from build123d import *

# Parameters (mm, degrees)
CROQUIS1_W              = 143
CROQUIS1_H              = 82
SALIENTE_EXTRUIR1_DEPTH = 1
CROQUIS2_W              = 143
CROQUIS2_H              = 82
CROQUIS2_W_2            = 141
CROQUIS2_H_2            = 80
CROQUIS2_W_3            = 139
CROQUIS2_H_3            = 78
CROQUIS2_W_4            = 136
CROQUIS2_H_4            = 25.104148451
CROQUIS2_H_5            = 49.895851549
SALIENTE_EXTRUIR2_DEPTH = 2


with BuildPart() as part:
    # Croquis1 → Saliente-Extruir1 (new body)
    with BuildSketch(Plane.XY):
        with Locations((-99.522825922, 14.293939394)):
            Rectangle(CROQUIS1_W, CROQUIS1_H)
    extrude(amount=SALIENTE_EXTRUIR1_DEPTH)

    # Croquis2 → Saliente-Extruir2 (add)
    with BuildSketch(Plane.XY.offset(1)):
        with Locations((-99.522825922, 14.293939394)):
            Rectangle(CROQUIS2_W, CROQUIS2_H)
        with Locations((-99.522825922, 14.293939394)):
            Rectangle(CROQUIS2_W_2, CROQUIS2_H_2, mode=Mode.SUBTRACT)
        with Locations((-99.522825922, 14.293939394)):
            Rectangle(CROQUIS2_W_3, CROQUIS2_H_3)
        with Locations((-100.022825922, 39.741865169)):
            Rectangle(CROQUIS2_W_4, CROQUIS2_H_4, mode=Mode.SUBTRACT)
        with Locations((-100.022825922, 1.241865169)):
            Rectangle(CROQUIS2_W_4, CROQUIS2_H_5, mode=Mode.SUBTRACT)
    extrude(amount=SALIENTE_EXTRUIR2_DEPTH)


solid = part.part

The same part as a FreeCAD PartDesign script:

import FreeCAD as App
import Part
import Sketcher

V = App.Vector
Q = App.Units.Quantity


def add_polygon(sketch, points):
    """Adds a closed chain of lines whose ends are joined by coincident constraints."""
    first, n = sketch.GeometryCount, len(points)
    for a, b in zip(points, points[1:] + points[:1]):
        sketch.addGeometry(Part.LineSegment(App.Vector(*a, 0), App.Vector(*b, 0)), False)
    for i in range(n):
        sketch.addConstraint(Sketcher.Constraint("Coincident", first + i, 2, first + (i + 1) % n, 1))

doc = App.newDocument("Part")
params = doc.addObject("Spreadsheet::Sheet", "Params")
for row, (alias, value) in enumerate([
    ("sketch1_width", "143 mm"),
    ("sketch1_height", "82 mm"),
    ("pad1_length", "1 mm"),
    ("sketch2_width", "143 mm"),
    ("sketch2_width2", "141 mm"),
    ("sketch2_width3", "139 mm"),
    ("sketch2_width4", "136 mm"),
    ("sketch2_height", "82 mm"),
    ("pad2_length", "2 mm"),
], start=1):
    params.set(f"A{row}", alias)
    params.set(f"B{row}", "=" + value)
    params.setAlias(f"B{row}", alias)

body = doc.addObject("PartDesign::Body", "Body")

# Sketch on XY plane
sketch1 = doc.addObject("Sketcher::SketchObject", "Sketch")
body.addObject(sketch1)
sketch1.AttachmentSupport = (doc.XY_Plane, [""])
sketch1.MapMode = "FlatFace"
add_polygon(sketch1, [(-171.022826, 55.293939), (-171.022826, -26.706061), (-28.022826, -26.706061), (-28.022826, 55.293939)])  # lines 0-3
sketch1.addConstraint(Sketcher.Constraint("Vertical", 0))
sketch1.addConstraint(Sketcher.Constraint("Horizontal", 1))
sketch1.addConstraint(Sketcher.Constraint("Vertical", 2))
sketch1.addConstraint(Sketcher.Constraint("Horizontal", 3))
sketch1.addConstraint(Sketcher.Constraint("DistanceX", 1, 1, 1, 2, Q("143 mm")))
sketch1.addConstraint(Sketcher.Constraint("DistanceY", 0, 2, 0, 1, Q("82 mm")))
sketch1.addConstraint(Sketcher.Constraint("DistanceY", 0, 2, -1, 1, Q("26.706061 mm")))
sketch1.addConstraint(Sketcher.Constraint("DistanceX", 0, 2, -1, 1, Q("171.022826 mm")))
sketch1.setExpression("Constraints[8]", "Params.sketch1_width")
sketch1.setExpression("Constraints[9]", "Params.sketch1_height")
pad1 = doc.addObject("PartDesign::Pad", "Pad")
body.addObject(pad1)
pad1.Profile = sketch1
pad1.setExpression("Length", "Params.pad1_length")

# Sketch on XY plane
sketch2 = doc.addObject("Sketcher::SketchObject", "Sketch001")
body.addObject(sketch2)
sketch2.AttachmentSupport = (doc.XY_Plane, [""])
sketch2.MapMode = "FlatFace"
sketch2.AttachmentOffset = App.Placement(V(0, 0, 1), App.Rotation())
add_polygon(sketch2, [(-171.022826, 55.293939), (-171.022826, -26.706061), (-28.022826, -26.706061), (-28.022826, 55.293939)])  # lines 0-3
add_polygon(sketch2, [(-29.022826, -25.706061), (-170.022826, -25.706061), (-170.022826, 54.293939), (-29.022826, 54.293939)])  # lines 4-7
add_polygon(sketch2, [(-169.022826, 53.293939), (-169.022826, -24.706061), (-30.022826, -24.706061), (-30.022826, 53.293939)])  # lines 8-11
add_polygon(sketch2, [(-32.022826, -23.706061), (-168.022826, -23.706061), (-168.022826, 26.189791), (-32.022826, 26.189791)])  # lines 12-15
add_polygon(sketch2, [(-32.022826, 27.189791), (-168.022826, 27.189791), (-168.022826, 52.293939), (-32.022826, 52.293939)])  # lines 16-19
sketch2.addConstraint(Sketcher.Constraint("Vertical", 0))
sketch2.addConstraint(Sketcher.Constraint("Horizontal", 1))
sketch2.addConstraint(Sketcher.Constraint("Vertical", 2))
sketch2.addConstraint(Sketcher.Constraint("Horizontal", 3))
sketch2.addConstraint(Sketcher.Constraint("Horizontal", 4))
sketch2.addConstraint(Sketcher.Constraint("Vertical", 5))
sketch2.addConstraint(Sketcher.Constraint("Horizontal", 6))
sketch2.addConstraint(Sketcher.Constraint("Vertical", 7))
sketch2.addConstraint(Sketcher.Constraint("Vertical", 8))
sketch2.addConstraint(Sketcher.Constraint("Horizontal", 9))
sketch2.addConstraint(Sketcher.Constraint("Vertical", 10))
sketch2.addConstraint(Sketcher.Constraint("Horizontal", 11))
sketch2.addConstraint(Sketcher.Constraint("Horizontal", 12))
sketch2.addConstraint(Sketcher.Constraint("Vertical", 13))
sketch2.addConstraint(Sketcher.Constraint("Horizontal", 14))
sketch2.addConstraint(Sketcher.Constraint("Vertical", 15))
sketch2.addConstraint(Sketcher.Constraint("Horizontal", 16))
sketch2.addConstraint(Sketcher.Constraint("Vertical", 17))
sketch2.addConstraint(Sketcher.Constraint("Horizontal", 18))
sketch2.addConstraint(Sketcher.Constraint("Vertical", 19))
sketch2.addConstraint(Sketcher.Constraint("Vertical", 13, 2, 16, 2))
sketch2.addConstraint(Sketcher.Constraint("Vertical", 15, 2, 18, 2))
sketch2.addConstraint(Sketcher.Constraint("DistanceX", 1, 1, 1, 2, Q("143 mm")))
sketch2.addConstraint(Sketcher.Constraint("DistanceX", 4, 2, 4, 1, Q("141 mm")))
sketch2.addConstraint(Sketcher.Constraint("DistanceX", 9, 1, 9, 2, Q("139 mm")))
sketch2.addConstraint(Sketcher.Constraint("DistanceX", 12, 2, 12, 1, Q("136 mm")))
sketch2.addConstraint(Sketcher.Constraint("DistanceY", 0, 2, 0, 1, Q("82 mm")))
sketch2.addConstraint(Sketcher.Constraint("DistanceY", 5, 1, 5, 2, Q("80 mm")))
sketch2.addConstraint(Sketcher.Constraint("DistanceY", 8, 2, 8, 1, Q("78 mm")))
sketch2.addConstraint(Sketcher.Constraint("DistanceX", 0, 2, 4, 2, Q("1 mm")))
sketch2.addConstraint(Sketcher.Constraint("DistanceY", 0, 2, 4, 2, Q("1 mm")))
sketch2.addConstraint(Sketcher.Constraint("DistanceX", 4, 2, 8, 2, Q("1 mm")))
sketch2.addConstraint(Sketcher.Constraint("DistanceY", 4, 2, 8, 2, Q("1 mm")))
sketch2.addConstraint(Sketcher.Constraint("DistanceX", 8, 2, 12, 2, Q("1 mm")))
sketch2.addConstraint(Sketcher.Constraint("DistanceY", 8, 2, 12, 2, Q("1 mm")))
sketch2.addConstraint(Sketcher.Constraint("DistanceY", 13, 2, 16, 2, Q("1 mm")))
sketch2.addConstraint(Sketcher.Constraint("DistanceY", 17, 2, 11, 2, Q("1 mm")))
sketch2.addConstraint(Sketcher.Constraint("DistanceY", 13, 1, 13, 2, Q("49.895852 mm")))
sketch2.addConstraint(Sketcher.Constraint("DistanceY", 0, 2, -1, 1, Q("26.706061 mm")))
sketch2.addConstraint(Sketcher.Constraint("DistanceX", 0, 2, -1, 1, Q("171.022826 mm")))
sketch2.setExpression("Constraints[42]", "Params.sketch2_width")
sketch2.setExpression("Constraints[43]", "Params.sketch2_width2")
sketch2.setExpression("Constraints[44]", "Params.sketch2_width3")
sketch2.setExpression("Constraints[45]", "Params.sketch2_width4")
sketch2.setExpression("Constraints[46]", "Params.sketch2_height")
pad2 = doc.addObject("PartDesign::Pad", "Pad001")
body.addObject(pad2)
pad2.Profile = sketch2
pad2.setExpression("Length", "Params.pad2_length")

doc.recompute()
